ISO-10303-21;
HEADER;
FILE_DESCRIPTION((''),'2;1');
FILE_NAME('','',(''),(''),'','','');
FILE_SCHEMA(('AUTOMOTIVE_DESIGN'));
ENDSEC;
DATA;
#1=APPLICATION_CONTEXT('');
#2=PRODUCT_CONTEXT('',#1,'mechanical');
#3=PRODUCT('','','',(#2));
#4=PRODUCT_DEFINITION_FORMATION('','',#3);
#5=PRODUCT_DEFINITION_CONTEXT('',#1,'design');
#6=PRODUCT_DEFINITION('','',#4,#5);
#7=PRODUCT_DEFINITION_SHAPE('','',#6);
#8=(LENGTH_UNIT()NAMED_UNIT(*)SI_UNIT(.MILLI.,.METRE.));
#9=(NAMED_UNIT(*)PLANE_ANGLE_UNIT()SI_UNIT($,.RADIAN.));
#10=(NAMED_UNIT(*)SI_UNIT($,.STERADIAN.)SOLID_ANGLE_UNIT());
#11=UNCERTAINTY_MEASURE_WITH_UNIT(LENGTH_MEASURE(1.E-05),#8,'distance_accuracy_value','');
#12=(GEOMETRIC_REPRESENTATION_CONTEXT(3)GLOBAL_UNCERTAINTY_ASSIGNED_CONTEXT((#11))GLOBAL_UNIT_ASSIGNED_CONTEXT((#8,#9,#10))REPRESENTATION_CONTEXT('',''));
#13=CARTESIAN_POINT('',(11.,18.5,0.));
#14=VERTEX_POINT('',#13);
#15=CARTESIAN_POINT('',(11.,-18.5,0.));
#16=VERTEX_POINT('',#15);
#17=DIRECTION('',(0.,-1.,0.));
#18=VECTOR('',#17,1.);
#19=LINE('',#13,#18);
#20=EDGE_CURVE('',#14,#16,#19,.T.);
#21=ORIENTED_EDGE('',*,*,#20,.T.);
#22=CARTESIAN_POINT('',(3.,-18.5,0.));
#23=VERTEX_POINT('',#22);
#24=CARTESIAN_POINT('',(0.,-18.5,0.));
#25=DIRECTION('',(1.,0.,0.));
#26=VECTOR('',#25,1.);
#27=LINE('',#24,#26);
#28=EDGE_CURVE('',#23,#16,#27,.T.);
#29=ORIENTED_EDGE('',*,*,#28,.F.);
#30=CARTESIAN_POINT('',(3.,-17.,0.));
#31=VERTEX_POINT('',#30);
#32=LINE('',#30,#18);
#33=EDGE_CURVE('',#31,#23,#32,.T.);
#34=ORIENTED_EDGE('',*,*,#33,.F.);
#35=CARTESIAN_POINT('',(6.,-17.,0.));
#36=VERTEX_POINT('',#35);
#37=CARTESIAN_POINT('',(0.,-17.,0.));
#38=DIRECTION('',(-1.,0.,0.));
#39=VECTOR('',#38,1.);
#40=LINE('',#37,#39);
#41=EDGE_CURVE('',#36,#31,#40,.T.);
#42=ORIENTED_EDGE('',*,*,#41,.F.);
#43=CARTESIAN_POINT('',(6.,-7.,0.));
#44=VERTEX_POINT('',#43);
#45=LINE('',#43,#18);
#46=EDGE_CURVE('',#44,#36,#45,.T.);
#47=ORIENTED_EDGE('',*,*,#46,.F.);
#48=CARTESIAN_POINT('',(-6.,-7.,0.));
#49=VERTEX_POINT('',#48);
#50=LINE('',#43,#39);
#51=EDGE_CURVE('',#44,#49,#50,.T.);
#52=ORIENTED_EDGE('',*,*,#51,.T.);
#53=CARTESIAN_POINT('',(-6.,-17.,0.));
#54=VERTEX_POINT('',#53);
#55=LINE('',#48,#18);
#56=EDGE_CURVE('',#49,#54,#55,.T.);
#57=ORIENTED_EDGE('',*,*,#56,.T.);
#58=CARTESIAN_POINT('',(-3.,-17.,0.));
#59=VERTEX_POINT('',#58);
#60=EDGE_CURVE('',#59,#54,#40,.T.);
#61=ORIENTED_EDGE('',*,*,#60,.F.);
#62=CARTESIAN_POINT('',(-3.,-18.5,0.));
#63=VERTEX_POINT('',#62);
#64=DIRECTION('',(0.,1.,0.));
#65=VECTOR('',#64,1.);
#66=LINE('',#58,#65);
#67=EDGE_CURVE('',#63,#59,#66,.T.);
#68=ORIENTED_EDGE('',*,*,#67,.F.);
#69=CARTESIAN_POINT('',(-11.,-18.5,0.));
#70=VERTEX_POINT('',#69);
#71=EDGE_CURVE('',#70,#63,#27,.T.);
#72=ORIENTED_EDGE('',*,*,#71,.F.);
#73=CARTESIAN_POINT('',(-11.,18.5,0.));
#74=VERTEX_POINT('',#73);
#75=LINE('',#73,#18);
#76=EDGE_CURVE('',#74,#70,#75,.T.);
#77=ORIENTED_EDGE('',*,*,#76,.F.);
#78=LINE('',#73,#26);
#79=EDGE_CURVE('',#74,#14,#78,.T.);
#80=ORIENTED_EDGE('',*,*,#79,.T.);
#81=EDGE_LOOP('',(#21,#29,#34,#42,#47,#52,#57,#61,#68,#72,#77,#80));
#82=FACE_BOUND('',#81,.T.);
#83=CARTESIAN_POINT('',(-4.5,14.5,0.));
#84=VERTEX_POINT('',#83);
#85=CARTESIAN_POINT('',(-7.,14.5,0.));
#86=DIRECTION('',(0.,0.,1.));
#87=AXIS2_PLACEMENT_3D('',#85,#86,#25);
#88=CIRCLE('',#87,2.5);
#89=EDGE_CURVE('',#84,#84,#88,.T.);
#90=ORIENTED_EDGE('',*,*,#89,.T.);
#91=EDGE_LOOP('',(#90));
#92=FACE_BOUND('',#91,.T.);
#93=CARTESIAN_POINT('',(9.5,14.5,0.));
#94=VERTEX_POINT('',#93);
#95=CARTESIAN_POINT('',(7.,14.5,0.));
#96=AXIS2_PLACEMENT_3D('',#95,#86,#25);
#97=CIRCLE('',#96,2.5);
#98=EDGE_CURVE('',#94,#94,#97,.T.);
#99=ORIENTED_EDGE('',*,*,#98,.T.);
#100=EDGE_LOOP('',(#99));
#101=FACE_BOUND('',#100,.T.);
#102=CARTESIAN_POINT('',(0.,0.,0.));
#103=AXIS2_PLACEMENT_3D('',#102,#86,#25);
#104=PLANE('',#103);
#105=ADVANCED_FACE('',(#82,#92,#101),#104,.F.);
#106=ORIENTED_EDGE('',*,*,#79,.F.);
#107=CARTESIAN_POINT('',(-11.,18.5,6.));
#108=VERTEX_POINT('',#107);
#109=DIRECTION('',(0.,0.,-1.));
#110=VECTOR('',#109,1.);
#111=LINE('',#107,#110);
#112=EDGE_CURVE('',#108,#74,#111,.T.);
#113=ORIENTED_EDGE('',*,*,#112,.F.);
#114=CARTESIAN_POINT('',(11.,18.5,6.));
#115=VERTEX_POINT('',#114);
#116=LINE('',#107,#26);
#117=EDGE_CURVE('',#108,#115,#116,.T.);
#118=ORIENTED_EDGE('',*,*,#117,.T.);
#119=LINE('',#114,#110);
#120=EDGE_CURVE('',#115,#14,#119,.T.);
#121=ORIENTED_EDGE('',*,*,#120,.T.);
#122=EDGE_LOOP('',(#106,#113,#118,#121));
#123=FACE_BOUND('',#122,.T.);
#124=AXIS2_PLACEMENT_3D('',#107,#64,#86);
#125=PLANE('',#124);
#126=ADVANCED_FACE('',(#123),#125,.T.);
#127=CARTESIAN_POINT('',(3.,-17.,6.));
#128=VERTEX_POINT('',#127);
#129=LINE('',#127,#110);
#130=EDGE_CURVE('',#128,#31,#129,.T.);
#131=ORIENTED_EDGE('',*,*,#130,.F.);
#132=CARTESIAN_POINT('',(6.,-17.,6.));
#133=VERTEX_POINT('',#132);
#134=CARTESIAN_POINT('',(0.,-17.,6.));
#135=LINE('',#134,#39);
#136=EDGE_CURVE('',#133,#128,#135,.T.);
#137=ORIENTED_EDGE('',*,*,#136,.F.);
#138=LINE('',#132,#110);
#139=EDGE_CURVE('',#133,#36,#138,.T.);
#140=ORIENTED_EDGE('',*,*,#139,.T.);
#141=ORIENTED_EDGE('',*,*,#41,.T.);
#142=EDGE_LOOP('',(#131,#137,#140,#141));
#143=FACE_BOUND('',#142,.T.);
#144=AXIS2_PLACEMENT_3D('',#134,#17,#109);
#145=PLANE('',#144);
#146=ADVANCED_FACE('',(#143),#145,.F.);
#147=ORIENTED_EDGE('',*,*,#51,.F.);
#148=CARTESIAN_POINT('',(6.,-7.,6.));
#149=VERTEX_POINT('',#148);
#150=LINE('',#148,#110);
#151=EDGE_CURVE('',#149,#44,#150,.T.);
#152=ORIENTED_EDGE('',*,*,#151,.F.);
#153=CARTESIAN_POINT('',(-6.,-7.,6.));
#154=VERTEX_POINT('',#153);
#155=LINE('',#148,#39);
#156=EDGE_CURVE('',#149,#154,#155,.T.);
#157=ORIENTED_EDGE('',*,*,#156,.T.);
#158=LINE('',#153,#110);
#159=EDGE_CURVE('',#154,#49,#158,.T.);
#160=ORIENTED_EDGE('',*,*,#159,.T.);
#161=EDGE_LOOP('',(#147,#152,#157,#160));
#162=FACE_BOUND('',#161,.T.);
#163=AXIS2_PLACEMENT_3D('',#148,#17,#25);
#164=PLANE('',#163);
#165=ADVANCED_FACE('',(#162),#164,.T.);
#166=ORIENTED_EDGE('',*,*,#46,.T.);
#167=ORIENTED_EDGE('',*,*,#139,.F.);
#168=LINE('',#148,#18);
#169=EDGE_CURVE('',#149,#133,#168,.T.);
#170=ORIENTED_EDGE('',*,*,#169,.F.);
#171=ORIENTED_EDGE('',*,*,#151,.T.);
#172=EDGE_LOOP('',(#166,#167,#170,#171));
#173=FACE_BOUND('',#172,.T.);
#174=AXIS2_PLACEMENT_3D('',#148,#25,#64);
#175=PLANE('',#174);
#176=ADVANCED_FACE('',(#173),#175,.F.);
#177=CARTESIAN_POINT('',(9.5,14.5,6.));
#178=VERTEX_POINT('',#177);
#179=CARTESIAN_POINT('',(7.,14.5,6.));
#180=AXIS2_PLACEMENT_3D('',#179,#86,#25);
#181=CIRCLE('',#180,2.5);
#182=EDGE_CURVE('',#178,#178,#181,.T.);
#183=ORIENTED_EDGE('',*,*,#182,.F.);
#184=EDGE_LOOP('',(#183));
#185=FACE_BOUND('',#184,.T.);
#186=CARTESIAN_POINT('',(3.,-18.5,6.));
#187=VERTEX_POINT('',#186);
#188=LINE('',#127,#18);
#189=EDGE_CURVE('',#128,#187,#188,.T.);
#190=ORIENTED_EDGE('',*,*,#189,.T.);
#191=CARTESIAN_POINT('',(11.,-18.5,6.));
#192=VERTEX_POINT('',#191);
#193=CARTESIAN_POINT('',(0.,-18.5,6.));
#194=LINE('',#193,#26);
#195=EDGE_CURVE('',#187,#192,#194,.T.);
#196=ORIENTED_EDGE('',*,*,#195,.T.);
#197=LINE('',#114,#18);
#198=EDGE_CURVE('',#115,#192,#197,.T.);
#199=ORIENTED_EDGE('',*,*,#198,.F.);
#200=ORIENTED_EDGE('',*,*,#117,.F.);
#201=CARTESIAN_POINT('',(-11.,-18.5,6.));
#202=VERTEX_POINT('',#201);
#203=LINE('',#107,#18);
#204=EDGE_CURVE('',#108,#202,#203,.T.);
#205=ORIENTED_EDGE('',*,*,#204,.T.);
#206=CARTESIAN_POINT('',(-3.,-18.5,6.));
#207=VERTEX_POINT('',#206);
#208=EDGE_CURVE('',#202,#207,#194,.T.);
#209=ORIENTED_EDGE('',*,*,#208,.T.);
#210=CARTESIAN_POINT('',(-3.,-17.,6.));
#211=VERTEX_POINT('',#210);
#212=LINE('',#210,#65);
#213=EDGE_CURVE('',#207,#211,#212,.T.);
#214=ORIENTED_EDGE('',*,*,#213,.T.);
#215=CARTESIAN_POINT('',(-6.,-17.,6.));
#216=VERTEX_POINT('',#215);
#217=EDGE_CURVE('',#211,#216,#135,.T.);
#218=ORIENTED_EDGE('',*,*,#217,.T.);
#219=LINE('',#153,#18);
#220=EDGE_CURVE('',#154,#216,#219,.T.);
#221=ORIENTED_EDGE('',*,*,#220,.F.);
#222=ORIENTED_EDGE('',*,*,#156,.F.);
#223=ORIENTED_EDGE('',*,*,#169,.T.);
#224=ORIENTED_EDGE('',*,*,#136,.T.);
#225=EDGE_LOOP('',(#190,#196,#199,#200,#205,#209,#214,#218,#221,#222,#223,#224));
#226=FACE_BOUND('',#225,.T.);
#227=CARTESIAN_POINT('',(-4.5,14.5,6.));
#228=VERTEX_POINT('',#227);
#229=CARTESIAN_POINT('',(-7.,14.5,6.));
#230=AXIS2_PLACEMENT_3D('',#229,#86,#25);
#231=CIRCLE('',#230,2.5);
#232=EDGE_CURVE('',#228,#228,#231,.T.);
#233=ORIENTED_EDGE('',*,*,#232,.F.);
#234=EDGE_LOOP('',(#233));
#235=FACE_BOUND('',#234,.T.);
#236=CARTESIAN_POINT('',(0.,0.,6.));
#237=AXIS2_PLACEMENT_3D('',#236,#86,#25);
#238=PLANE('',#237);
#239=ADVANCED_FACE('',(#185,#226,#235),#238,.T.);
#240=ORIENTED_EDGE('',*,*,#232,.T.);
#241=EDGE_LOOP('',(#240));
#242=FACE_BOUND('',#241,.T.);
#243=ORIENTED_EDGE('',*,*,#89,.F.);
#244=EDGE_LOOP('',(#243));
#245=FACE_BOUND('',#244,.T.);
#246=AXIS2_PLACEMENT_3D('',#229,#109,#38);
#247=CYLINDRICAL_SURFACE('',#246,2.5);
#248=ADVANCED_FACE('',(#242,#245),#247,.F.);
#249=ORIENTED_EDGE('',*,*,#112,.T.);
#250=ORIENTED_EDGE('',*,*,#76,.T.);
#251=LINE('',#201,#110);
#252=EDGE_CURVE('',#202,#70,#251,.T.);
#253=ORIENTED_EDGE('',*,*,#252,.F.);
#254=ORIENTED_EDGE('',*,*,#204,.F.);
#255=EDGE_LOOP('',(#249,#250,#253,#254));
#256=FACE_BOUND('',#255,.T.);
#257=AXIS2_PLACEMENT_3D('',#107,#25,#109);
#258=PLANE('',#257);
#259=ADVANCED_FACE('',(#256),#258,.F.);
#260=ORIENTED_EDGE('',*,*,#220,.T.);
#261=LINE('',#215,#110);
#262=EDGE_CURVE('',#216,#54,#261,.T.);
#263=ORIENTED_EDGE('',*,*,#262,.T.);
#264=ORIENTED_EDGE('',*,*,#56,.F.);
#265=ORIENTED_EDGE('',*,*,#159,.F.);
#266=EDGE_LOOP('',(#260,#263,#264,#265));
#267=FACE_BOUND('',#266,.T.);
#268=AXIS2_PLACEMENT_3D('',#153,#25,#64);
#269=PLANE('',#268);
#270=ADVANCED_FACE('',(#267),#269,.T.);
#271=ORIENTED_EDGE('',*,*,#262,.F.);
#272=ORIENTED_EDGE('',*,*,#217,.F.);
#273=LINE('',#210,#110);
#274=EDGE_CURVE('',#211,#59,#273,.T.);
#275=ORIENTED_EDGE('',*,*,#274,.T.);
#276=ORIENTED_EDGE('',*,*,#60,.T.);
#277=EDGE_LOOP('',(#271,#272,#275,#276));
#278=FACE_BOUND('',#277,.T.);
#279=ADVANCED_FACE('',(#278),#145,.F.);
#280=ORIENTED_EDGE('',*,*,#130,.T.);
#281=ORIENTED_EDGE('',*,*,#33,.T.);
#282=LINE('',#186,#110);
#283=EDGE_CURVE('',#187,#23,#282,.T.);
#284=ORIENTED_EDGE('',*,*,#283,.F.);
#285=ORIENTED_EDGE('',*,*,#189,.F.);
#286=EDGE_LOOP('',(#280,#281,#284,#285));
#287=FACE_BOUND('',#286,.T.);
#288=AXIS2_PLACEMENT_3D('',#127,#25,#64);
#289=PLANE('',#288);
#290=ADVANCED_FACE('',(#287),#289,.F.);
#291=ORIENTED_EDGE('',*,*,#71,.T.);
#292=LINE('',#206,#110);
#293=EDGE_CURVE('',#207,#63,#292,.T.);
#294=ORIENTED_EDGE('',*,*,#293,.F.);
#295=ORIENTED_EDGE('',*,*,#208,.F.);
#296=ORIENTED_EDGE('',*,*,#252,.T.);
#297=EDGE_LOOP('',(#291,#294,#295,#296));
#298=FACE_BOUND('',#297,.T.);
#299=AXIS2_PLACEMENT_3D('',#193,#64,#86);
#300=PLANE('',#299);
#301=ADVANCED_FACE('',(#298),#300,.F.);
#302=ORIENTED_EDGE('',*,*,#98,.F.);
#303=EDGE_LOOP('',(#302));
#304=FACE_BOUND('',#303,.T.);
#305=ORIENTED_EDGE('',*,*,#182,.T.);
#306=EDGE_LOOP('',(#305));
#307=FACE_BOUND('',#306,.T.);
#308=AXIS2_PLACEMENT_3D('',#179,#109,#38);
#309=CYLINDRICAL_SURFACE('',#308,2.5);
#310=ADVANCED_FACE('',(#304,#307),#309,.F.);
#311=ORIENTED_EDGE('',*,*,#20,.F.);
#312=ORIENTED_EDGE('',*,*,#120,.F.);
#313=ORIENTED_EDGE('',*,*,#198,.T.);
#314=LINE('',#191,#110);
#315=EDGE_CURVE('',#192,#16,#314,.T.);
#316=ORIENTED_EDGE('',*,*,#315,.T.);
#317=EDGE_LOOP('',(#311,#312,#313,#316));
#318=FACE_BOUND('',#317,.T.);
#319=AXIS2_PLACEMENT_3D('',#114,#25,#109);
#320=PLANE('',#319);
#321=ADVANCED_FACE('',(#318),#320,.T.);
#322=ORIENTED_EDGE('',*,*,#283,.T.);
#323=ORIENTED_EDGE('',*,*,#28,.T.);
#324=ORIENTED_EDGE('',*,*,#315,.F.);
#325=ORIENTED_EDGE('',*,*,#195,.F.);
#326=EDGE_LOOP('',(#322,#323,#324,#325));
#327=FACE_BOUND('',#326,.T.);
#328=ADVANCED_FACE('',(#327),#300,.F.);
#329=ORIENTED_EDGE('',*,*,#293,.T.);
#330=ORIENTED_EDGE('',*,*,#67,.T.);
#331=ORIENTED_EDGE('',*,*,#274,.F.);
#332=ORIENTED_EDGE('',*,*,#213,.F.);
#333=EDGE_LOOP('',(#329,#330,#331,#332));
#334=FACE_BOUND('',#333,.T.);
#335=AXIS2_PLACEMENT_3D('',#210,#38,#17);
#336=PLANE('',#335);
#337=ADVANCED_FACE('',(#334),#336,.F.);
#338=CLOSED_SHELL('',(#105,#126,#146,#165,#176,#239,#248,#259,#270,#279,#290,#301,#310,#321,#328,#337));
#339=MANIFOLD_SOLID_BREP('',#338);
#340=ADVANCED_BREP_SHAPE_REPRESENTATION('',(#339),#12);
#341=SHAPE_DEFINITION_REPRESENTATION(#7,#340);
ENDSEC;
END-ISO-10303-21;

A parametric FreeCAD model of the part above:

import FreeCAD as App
import Part
import Sketcher

V = App.Vector

doc = App.newDocument("Part")
body = doc.addObject("PartDesign::Body", "Body")

# Sketch on XY plane
sketch1 = body.newObject("Sketcher::SketchObject", "Sketch")
sketch1.AttachmentSupport = (doc.getObject("XY_Plane"), [""])
sketch1.MapMode = "FlatFace"
sketch1.addGeometry([
    Part.LineSegment(V(-11, 18.5, 0), V(-11, -18.5, 0)),  # 0
    Part.LineSegment(V(-11, -18.5, 0), V(11, -18.5, 0)),  # 1
    Part.LineSegment(V(11, -18.5, 0), V(11, 18.5, 0)),  # 2
    Part.LineSegment(V(11, 18.5, 0), V(-11, 18.5, 0)),  # 3
    Part.LineSegment(V(6, -17, 0), V(-6, -17, 0)),  # 4
    Part.LineSegment(V(-6, -17, 0), V(-6, -7, 0)),  # 5
    Part.LineSegment(V(-6, -7, 0), V(6, -7, 0)),  # 6
    Part.LineSegment(V(6, -7, 0), V(6, -17, 0)),  # 7
    Part.Circle(V(-7, 14.5, 0), V(0, 0, 1), 2.5),  # 8
    Part.Circle(V(7, 14.5, 0), V(0, 0, 1), 2.5),  # 9
], False)
sketch1.addConstraint([
    Sketcher.Constraint("Coincident", 0, 2, 1, 1),
    Sketcher.Constraint("Coincident", 1, 2, 2, 1),
    Sketcher.Constraint("Coincident", 2, 2, 3, 1),
    Sketcher.Constraint("Coincident", 3, 2, 0, 1),
    Sketcher.Constraint("Coincident", 4, 2, 5, 1),
    Sketcher.Constraint("Coincident", 5, 2, 6, 1),
    Sketcher.Constraint("Coincident", 6, 2, 7, 1),
    Sketcher.Constraint("Coincident", 7, 2, 4, 1),
    Sketcher.Constraint("Vertical", 0),
    Sketcher.Constraint("Horizontal", 1),
    Sketcher.Constraint("Vertical", 2),
    Sketcher.Constraint("Horizontal", 3),
    Sketcher.Constraint("Horizontal", 4),
    Sketcher.Constraint("Vertical", 5),
    Sketcher.Constraint("Horizontal", 6),
    Sketcher.Constraint("Vertical", 7),
    Sketcher.Constraint("Equal", 8, 9),
    Sketcher.Constraint("Symmetric", 0, 2, 2, 2, -1, 1),
    Sketcher.Constraint("Symmetric", 8, 3, 9, 3, -2),
    Sketcher.Constraint("Diameter", 8, 5.0),
    Sketcher.Constraint("DistanceX", 1, 1, 1, 2, 22.0),
    Sketcher.Constraint("DistanceX", 4, 2, 4, 1, 12.0),
    Sketcher.Constraint("DistanceY", 0, 2, 0, 1, 37.0),
    Sketcher.Constraint("DistanceY", 5, 1, 5, 2, 10.0),
    Sketcher.Constraint("DistanceX", 8, 3, -1, 1, 7.0),
    Sketcher.Constraint("DistanceX", 4, 2, -1, 1, 6.0),
    Sketcher.Constraint("DistanceY", 4, 2, -1, 1, 17.0),
    Sketcher.Constraint("DistanceY", 0, 2, 8, 3, 33.0),
])
pad1 = body.newObject("PartDesign::Pad", "Pad")
pad1.Profile = sketch1
pad1.Length = 6

# Sketch on XY plane
sketch2 = body.newObject("Sketcher::SketchObject", "Sketch001")
sketch2.AttachmentSupport = (doc.getObject("XY_Plane"), [""])
sketch2.MapMode = "FlatFace"
sketch2.addGeometry([
    Part.LineSegment(V(3, -17, 0), V(3, -18.5, 0)),
    Part.LineSegment(V(3, -18.5, 0), V(-3, -18.5, 0)),
    Part.LineSegment(V(-3, -18.5, 0), V(-3, -17, 0)),
    Part.LineSegment(V(-3, -17, 0), V(3, -17, 0)),
], False)
sketch2.addConstraint([
    Sketcher.Constraint("Coincident", 0, 2, 1, 1),
    Sketcher.Constraint("Coincident", 1, 2, 2, 1),
    Sketcher.Constraint("Coincident", 2, 2, 3, 1),
    Sketcher.Constraint("Coincident", 3, 2, 0, 1),
    Sketcher.Constraint("Vertical", 0),
    Sketcher.Constraint("Horizontal", 1),
    Sketcher.Constraint("Vertical", 2),
    Sketcher.Constraint("Horizontal", 3),
    Sketcher.Constraint("DistanceX", 1, 2, 1, 1, 6.0),
    Sketcher.Constraint("DistanceY", 0, 2, 0, 1, 1.5),
    Sketcher.Constraint("DistanceX", -1, 1, 0, 2, 3.0),
    Sketcher.Constraint("DistanceY", 2, 2, -1, 1, 17.0),
])
pocket1 = body.newObject("PartDesign::Pocket", "Pocket")
pocket1.Profile = sketch2
pocket1.Length = 6
pocket1.Reversed = True

doc.recompute()
